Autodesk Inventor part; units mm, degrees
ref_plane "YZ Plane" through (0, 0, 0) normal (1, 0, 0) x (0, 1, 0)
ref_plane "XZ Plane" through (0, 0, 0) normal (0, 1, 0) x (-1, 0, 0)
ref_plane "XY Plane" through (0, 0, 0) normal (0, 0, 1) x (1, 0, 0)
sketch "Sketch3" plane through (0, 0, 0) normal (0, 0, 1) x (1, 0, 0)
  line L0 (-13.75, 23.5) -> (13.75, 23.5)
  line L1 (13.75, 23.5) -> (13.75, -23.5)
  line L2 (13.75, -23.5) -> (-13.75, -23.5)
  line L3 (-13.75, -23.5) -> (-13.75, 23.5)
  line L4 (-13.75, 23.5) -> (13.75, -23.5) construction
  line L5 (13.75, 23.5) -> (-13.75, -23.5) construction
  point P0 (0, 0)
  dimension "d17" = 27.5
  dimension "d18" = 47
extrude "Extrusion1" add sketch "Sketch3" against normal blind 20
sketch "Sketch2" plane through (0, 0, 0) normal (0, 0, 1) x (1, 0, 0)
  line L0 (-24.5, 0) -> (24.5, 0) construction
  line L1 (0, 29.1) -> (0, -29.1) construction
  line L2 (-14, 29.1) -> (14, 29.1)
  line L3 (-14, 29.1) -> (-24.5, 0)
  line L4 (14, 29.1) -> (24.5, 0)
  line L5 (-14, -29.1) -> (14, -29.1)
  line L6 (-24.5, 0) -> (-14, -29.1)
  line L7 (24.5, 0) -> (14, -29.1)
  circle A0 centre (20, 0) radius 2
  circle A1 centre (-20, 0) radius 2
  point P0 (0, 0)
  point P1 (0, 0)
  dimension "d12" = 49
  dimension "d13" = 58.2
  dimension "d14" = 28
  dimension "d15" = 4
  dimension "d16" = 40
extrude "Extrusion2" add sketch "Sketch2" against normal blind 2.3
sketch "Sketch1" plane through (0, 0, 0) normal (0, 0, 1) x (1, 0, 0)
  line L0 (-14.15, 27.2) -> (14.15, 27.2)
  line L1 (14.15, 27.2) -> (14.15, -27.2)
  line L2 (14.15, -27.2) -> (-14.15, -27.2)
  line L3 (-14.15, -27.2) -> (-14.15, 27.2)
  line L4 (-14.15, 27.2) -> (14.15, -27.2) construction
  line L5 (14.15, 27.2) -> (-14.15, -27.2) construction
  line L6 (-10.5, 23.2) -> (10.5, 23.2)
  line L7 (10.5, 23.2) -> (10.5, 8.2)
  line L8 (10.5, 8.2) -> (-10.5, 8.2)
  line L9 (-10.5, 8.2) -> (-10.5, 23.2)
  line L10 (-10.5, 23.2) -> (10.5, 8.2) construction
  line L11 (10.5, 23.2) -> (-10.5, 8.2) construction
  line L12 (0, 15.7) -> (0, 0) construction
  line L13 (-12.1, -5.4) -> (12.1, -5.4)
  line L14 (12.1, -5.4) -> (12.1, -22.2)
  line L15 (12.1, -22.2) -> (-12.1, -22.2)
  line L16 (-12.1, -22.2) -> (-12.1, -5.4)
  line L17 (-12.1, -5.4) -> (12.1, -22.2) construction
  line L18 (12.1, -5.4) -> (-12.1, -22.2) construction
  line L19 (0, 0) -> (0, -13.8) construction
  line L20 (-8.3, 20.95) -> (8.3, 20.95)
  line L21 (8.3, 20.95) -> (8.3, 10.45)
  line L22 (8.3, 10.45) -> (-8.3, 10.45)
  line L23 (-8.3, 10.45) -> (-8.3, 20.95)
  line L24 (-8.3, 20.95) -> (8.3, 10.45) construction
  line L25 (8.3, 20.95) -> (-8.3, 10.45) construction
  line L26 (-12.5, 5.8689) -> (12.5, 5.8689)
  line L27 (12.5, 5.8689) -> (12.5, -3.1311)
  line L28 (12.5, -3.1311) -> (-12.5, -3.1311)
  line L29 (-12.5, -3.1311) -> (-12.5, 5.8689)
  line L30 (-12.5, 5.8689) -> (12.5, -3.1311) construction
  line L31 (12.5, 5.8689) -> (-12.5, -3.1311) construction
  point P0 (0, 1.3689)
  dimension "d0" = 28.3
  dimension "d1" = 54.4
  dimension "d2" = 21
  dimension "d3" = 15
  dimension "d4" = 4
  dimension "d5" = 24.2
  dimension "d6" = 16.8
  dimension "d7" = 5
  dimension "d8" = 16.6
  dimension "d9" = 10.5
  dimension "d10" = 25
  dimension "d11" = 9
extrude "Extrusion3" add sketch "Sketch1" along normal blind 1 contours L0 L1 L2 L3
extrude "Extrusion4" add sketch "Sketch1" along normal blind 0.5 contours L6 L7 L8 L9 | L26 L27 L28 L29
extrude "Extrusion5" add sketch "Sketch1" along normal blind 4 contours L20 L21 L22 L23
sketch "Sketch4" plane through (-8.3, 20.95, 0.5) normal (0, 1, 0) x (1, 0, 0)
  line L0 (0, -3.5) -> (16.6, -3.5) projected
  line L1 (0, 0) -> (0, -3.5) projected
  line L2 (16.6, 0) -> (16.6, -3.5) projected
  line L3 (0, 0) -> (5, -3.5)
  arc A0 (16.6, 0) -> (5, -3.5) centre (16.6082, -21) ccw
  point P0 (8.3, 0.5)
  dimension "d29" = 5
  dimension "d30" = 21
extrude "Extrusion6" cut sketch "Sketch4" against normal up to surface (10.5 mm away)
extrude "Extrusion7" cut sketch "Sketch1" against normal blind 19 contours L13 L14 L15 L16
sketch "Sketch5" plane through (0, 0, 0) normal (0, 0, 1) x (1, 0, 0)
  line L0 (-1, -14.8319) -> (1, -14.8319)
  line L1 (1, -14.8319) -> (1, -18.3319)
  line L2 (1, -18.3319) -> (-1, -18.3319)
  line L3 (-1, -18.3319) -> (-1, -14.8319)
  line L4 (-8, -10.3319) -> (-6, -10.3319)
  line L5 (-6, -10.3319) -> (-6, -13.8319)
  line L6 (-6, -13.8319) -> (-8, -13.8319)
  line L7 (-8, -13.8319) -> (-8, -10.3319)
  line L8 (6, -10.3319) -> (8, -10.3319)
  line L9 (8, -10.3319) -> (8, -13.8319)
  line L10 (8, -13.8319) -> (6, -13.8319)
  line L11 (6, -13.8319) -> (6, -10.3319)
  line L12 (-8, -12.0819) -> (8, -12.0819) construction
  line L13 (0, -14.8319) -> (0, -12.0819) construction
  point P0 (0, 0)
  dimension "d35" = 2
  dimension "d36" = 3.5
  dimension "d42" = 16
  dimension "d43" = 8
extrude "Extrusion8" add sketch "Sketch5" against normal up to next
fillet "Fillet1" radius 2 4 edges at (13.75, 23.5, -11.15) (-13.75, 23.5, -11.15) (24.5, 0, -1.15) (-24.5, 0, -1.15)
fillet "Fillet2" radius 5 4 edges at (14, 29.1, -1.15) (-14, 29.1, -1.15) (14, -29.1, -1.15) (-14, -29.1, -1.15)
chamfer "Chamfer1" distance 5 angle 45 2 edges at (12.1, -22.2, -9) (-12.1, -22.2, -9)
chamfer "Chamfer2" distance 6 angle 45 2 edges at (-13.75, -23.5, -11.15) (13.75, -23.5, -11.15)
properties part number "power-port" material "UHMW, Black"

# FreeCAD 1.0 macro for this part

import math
import FreeCAD as App
import Part
import Sketcher
from FreeCAD import Vector
Q = App.Units.Quantity


def edges_at(feature, points):
    """Names of the edges that pass closest to the given points."""
    edges = feature.Shape.Edges
    near = lambda p: min(range(len(edges)), key=lambda i: edges[i].distToShape(Part.Vertex(*p))[0])
    return sorted({f"Edge{near(p) + 1}" for p in points})


def add_polygon(sketch, points):
    """Adds a closed chain of lines whose ends are joined by coincident constraints."""
    first, n = sketch.GeometryCount, len(points)
    for a, b in zip(points, points[1:] + points[:1]):
        sketch.addGeometry(Part.LineSegment(App.Vector(*a, 0), App.Vector(*b, 0)), False)
    for i in range(n):
        sketch.addConstraint(Sketcher.Constraint("Coincident", first + i, 2, first + (i + 1) % n, 1))

doc = App.newDocument("Part")
body = doc.addObject("PartDesign::Body", "Body")

# Sketch on XY plane
sketch1 = doc.addObject("Sketcher::SketchObject", "Sketch")
body.addObject(sketch1)
sketch1.AttachmentSupport = (doc.XY_Plane, [""])
sketch1.MapMode = "FlatFace"
add_polygon(sketch1, [(13.75, 23.5), (-13.75, 23.5), (-13.75, -23.5), (13.75, -23.5)])  # lines 0-3
sketch1.addConstraint(Sketcher.Constraint("Horizontal", 0))
sketch1.addConstraint(Sketcher.Constraint("Vertical", 1))
sketch1.addConstraint(Sketcher.Constraint("Horizontal", 2))
sketch1.addConstraint(Sketcher.Constraint("Vertical", 3))
sketch1.addConstraint(Sketcher.Constraint("Symmetric", 0, 2, 2, 2, -1, 1))
sketch1.addConstraint(Sketcher.Constraint("DistanceY", 1, 2, 1, 1, Q("47 mm")))
sketch1.addConstraint(Sketcher.Constraint("DistanceX", 0, 2, 0, 1, Q("27.5 mm")))
pad1 = doc.addObject("PartDesign::Pad", "Pad")
body.addObject(pad1)
pad1.Profile = sketch1
pad1.Length = 20
pad1.Reversed = True

# Sketch on XY plane
sketch2 = doc.addObject("Sketcher::SketchObject", "Sketch001")
body.addObject(sketch2)
sketch2.AttachmentSupport = (doc.XY_Plane, [""])
sketch2.MapMode = "FlatFace"
add_polygon(sketch2, [(14, 29.1), (-14, 29.1), (-24.5, 0), (-14, -29.1), (14, -29.1), (24.5, 0)])  # lines 0-5
sketch2.addGeometry(Part.Circle(Vector(-20, 0, 0), Vector(0, 0, 1), 2), False)  # 6
sketch2.addGeometry(Part.Circle(Vector(20, 0, 0), Vector(0, 0, 1), 2), False)  # 7
sketch2.addConstraint(Sketcher.Constraint("Horizontal", 0))
sketch2.addConstraint(Sketcher.Constraint("Horizontal", 3))
sketch2.addConstraint(Sketcher.Constraint("Equal", 6, 7))
sketch2.addConstraint(Sketcher.Constraint("Symmetric", 6, 3, 7, 3, -1, 1))
sketch2.addConstraint(Sketcher.Constraint("Symmetric", 0, 2, 3, 2, -1, 1))
sketch2.addConstraint(Sketcher.Constraint("Symmetric", 1, 2, 4, 2, -1, 1))
sketch2.addConstraint(Sketcher.Constraint("PointOnObject", 6, 3, -1))
sketch2.addConstraint(Sketcher.Constraint("PointOnObject", 1, 2, -1))
sketch2.addConstraint(Sketcher.Constraint("Parallel", 2, 5))
sketch2.addConstraint(Sketcher.Constraint("Vertical", 0, 2, 2, 2))
sketch2.addConstraint(Sketcher.Constraint("Diameter", 6, Q("4 mm")))
sketch2.addConstraint(Sketcher.Constraint("DistanceX", 0, 2, 0, 1, Q("28 mm")))
sketch2.addConstraint(Sketcher.Constraint("DistanceX", 6, 3, 7, 3, Q("40 mm")))
sketch2.addConstraint(Sketcher.Constraint("DistanceY", 2, 2, 0, 2, Q("58.2 mm")))
sketch2.addConstraint(Sketcher.Constraint("DistanceX", 1, 2, -1, 1, Q("24.5 mm")))
pad2 = doc.addObject("PartDesign::Pad", "Pad001")
body.addObject(pad2)
pad2.Profile = sketch2
pad2.Length = 2.3
pad2.Reversed = True

# Sketch on XY plane
sketch3 = doc.addObject("Sketcher::SketchObject", "Sketch002")
body.addObject(sketch3)
sketch3.AttachmentSupport = (doc.XY_Plane, [""])
sketch3.MapMode = "FlatFace"
add_polygon(sketch3, [(14.15, 27.2), (-14.15, 27.2), (-14.15, -27.2), (14.15, -27.2)])  # lines 0-3
add_polygon(sketch3, [(-12.1, -22.2), (-12.1, -5.4), (12.1, -5.4), (12.1, -22.2)])  # lines 4-7
add_polygon(sketch3, [(-12.5, -3.1311), (-12.5, 5.8689), (12.5, 5.8689), (12.5, -3.1311)])  # lines 8-11
add_polygon(sketch3, [(-10.5, 8.2), (-10.5, 23.2), (10.5, 23.2), (10.5, 8.2)])  # lines 12-15
sketch3.addConstraint(Sketcher.Constraint("Horizontal", 0))
sketch3.addConstraint(Sketcher.Constraint("Vertical", 1))
sketch3.addConstraint(Sketcher.Constraint("Horizontal", 2))
sketch3.addConstraint(Sketcher.Constraint("Vertical", 3))
sketch3.addConstraint(Sketcher.Constraint("Vertical", 4))
sketch3.addConstraint(Sketcher.Constraint("Horizontal", 5))
sketch3.addConstraint(Sketcher.Constraint("Vertical", 6))
sketch3.addConstraint(Sketcher.Constraint("Horizontal", 7))
sketch3.addConstraint(Sketcher.Constraint("Vertical", 8))
sketch3.addConstraint(Sketcher.Constraint("Horizontal", 9))
sketch3.addConstraint(Sketcher.Constraint("Vertical", 10))
sketch3.addConstraint(Sketcher.Constraint("Horizontal", 11))
sketch3.addConstraint(Sketcher.Constraint("Vertical", 12))
sketch3.addConstraint(Sketcher.Constraint("Horizontal", 13))
sketch3.addConstraint(Sketcher.Constraint("Vertical", 14))
sketch3.addConstraint(Sketcher.Constraint("Horizontal", 15))
sketch3.addConstraint(Sketcher.Constraint("Symmetric", 0, 2, 2, 2, -1, 1))
sketch3.addConstraint(Sketcher.Constraint("DistanceX", 9, 1, 9, 2, Q("25 mm")))
sketch3.addConstraint(Sketcher.Constraint("DistanceX", 13, 1, 13, 2, Q("21 mm")))
sketch3.addConstraint(Sketcher.Constraint("DistanceY", 8, 1, 8, 2, Q("9 mm")))
sketch3.addConstraint(Sketcher.Constraint("DistanceY", 12, 1, 12, 2, Q("15 mm")))
sketch3.addConstraint(Sketcher.Constraint("DistanceX", 0, 2, 0, 1, Q("28.3 mm")))
sketch3.addConstraint(Sketcher.Constraint("DistanceX", 5, 1, 5, 2, Q("24.2 mm")))
sketch3.addConstraint(Sketcher.Constraint("DistanceY", 1, 2, 1, 1, Q("54.4 mm")))
sketch3.addConstraint(Sketcher.Constraint("DistanceY", 4, 1, 4, 2, Q("16.8 mm")))
sketch3.addConstraint(Sketcher.Constraint("DistanceY", 2, 2, 6, 2, Q("5 mm")))
sketch3.addConstraint(Sketcher.Constraint("DistanceY", 12, 2, 0, 2, Q("4 mm")))
sketch3.addConstraint(Sketcher.Constraint("DistanceX", 12, 2, -1, 1, Q("10.5 mm")))
sketch3.addConstraint(Sketcher.Constraint("DistanceX", 8, 2, 12, 2, Q("2 mm")))
sketch3.addConstraint(Sketcher.Constraint("DistanceX", 4, 2, -1, 1, Q("12.1 mm")))
sketch3.addConstraint(Sketcher.Constraint("DistanceY", -1, 1, 8, 2, Q("5.869 mm")))
pad3 = doc.addObject("PartDesign::Pad", "Pad002")
body.addObject(pad3)
pad3.Profile = sketch3
pad3.Length = 1

# Sketch on XY plane
sketch4 = doc.addObject("Sketcher::SketchObject", "Sketch003")
body.addObject(sketch4)
sketch4.AttachmentSupport = (doc.XY_Plane, [""])
sketch4.MapMode = "FlatFace"
add_polygon(sketch4, [(10.5, 23.2), (-10.5, 23.2), (-10.5, 8.2), (10.5, 8.2)])  # lines 0-3
add_polygon(sketch4, [(-8.3, 10.45), (-8.3, 20.95), (8.3, 20.95), (8.3, 10.45)])  # lines 4-7
add_polygon(sketch4, [(12.5, 5.8689), (-12.5, 5.8689), (-12.5, -3.1311), (12.5, -3.1311)])  # lines 8-11
sketch4.addConstraint(Sketcher.Constraint("Horizontal", 0))
sketch4.addConstraint(Sketcher.Constraint("Vertical", 1))
sketch4.addConstraint(Sketcher.Constraint("Horizontal", 2))
sketch4.addConstraint(Sketcher.Constraint("Vertical", 3))
sketch4.addConstraint(Sketcher.Constraint("Vertical", 4))
sketch4.addConstraint(Sketcher.Constraint("Horizontal", 5))
sketch4.addConstraint(Sketcher.Constraint("Vertical", 6))
sketch4.addConstraint(Sketcher.Constraint("Horizontal", 7))
sketch4.addConstraint(Sketcher.Constraint("Horizontal", 8))
sketch4.addConstraint(Sketcher.Constraint("Vertical", 9))
sketch4.addConstraint(Sketcher.Constraint("Horizontal", 10))
sketch4.addConstraint(Sketcher.Constraint("Vertical", 11))
sketch4.addConstraint(Sketcher.Constraint("DistanceX", 0, 2, 0, 1, Q("21 mm")))
sketch4.addConstraint(Sketcher.Constraint("DistanceX", 8, 2, 8, 1, Q("25 mm")))
sketch4.addConstraint(Sketcher.Constraint("DistanceY", 1, 2, 1, 1, Q("15 mm")))
sketch4.addConstraint(Sketcher.Constraint("DistanceY", 9, 2, 9, 1, Q("9 mm")))
sketch4.addConstraint(Sketcher.Constraint("DistanceX", 5, 1, 5, 2, Q("16.6 mm")))
sketch4.addConstraint(Sketcher.Constraint("DistanceY", 4, 1, 4, 2, Q("10.5 mm")))
sketch4.addConstraint(Sketcher.Constraint("DistanceX", 0, 2, -1, 1, Q("10.5 mm")))
sketch4.addConstraint(Sketcher.Constraint("DistanceX", 8, 2, 1, 2, Q("2 mm")))
sketch4.addConstraint(Sketcher.Constraint("DistanceY", -1, 1, 0, 2, Q("23.2 mm")))
sketch4.addConstraint(Sketcher.Constraint("DistanceX", 4, 2, -1, 1, Q("8.3 mm")))
sketch4.addConstraint(Sketcher.Constraint("DistanceY", -1, 1, 4, 2, Q("20.95 mm")))
sketch4.addConstraint(Sketcher.Constraint("DistanceY", -1, 1, 8, 2, Q("5.869 mm")))
pad4 = doc.addObject("PartDesign::Pad", "Pad003")
body.addObject(pad4)
pad4.Profile = sketch4
pad4.Length = 0.5

# Sketch on XY plane
sketch5 = doc.addObject("Sketcher::SketchObject", "Sketch004")
body.addObject(sketch5)
sketch5.AttachmentSupport = (doc.XY_Plane, [""])
sketch5.MapMode = "FlatFace"
add_polygon(sketch5, [(8.3, 20.95), (-8.3, 20.95), (-8.3, 10.45), (8.3, 10.45)])  # lines 0-3
sketch5.addConstraint(Sketcher.Constraint("Horizontal", 0))
sketch5.addConstraint(Sketcher.Constraint("Vertical", 1))
sketch5.addConstraint(Sketcher.Constraint("Horizontal", 2))
sketch5.addConstraint(Sketcher.Constraint("Vertical", 3))
sketch5.addConstraint(Sketcher.Constraint("DistanceX", 0, 2, 0, 1, Q("16.6 mm")))
sketch5.addConstraint(Sketcher.Constraint("DistanceY", 1, 2, 1, 1, Q("10.5 mm")))
sketch5.addConstraint(Sketcher.Constraint("DistanceX", 0, 2, -1, 1, Q("8.3 mm")))
sketch5.addConstraint(Sketcher.Constraint("DistanceY", -1, 1, 0, 2, Q("20.95 mm")))
pad5 = doc.addObject("PartDesign::Pad", "Pad004")
body.addObject(pad5)
pad5.Profile = sketch5
pad5.Length = 4

# Sketch on XZ plane
sketch6 = doc.addObject("Sketcher::SketchObject", "Sketch005")
body.addObject(sketch6)
sketch6.AttachmentSupport = (doc.XZ_Plane, [""])
sketch6.MapMode = "FlatFace"
sketch6.AttachmentOffset = App.Placement(Vector(0, 0, -20.95), App.Rotation())
add_polygon(sketch6, [(-8.3, 0.5), (-8.3, 4), (-3.3, 4)])  # lines 0-2
sketch6.addGeometry(Part.ArcOfCircle(Part.Circle(Vector(8.3082, 21.5, 0), Vector(0, 0, 1), 21.000002), math.radians(-123.55734), math.radians(-90.022373)), False)  # 3
sketch6.addGeometry(Part.LineSegment(Vector(-3.3, 4, 0), Vector(8.3, 4, 0)), False)  # 4
sketch6.addGeometry(Part.LineSegment(Vector(8.3, 4, 0), Vector(8.3, 0.5, 0)), False)  # 5
sketch6.addConstraint(Sketcher.Constraint("Coincident", 3, 1, 4, 1))
sketch6.addConstraint(Sketcher.Constraint("Coincident", 4, 2, 5, 1))
sketch6.addConstraint(Sketcher.Constraint("Coincident", 5, 2, 3, 2))
sketch6.addConstraint(Sketcher.Constraint("Vertical", 0))
sketch6.addConstraint(Sketcher.Constraint("Horizontal", 1))
sketch6.addConstraint(Sketcher.Constraint("Horizontal", 4))
sketch6.addConstraint(Sketcher.Constraint("Vertical", 5))
sketch6.addConstraint(Sketcher.Constraint("Coincident", 3, 1, 1, 2))
sketch6.addConstraint(Sketcher.Constraint("Symmetric", 2, 2, 5, 2, -2))
sketch6.addConstraint(Sketcher.Constraint("Radius", 3, Q("21 mm")))
sketch6.addConstraint(Sketcher.Constraint("DistanceX", 1, 1, 1, 2, Q("5 mm")))
sketch6.addConstraint(Sketcher.Constraint("DistanceX", 4, 1, 4, 2, Q("11.6 mm")))
sketch6.addConstraint(Sketcher.Constraint("DistanceY", 0, 1, 0, 2, Q("3.5 mm")))
sketch6.addConstraint(Sketcher.Constraint("DistanceY", -1, 1, 0, 2, Q("4 mm")))
pocket1 = doc.addObject("PartDesign::Pocket", "Pocket")
body.addObject(pocket1)
pocket1.Profile = sketch6
pocket1.Length = 10.5
pocket1.Reversed = True

# Sketch on XY plane
sketch7 = doc.addObject("Sketcher::SketchObject", "Sketch006")
body.addObject(sketch7)
sketch7.AttachmentSupport = (doc.XY_Plane, [""])
sketch7.MapMode = "FlatFace"
add_polygon(sketch7, [(12.1, -5.4), (-12.1, -5.4), (-12.1, -22.2), (12.1, -22.2)])  # lines 0-3
sketch7.addConstraint(Sketcher.Constraint("Horizontal", 0))
sketch7.addConstraint(Sketcher.Constraint("Vertical", 1))
sketch7.addConstraint(Sketcher.Constraint("Horizontal", 2))
sketch7.addConstraint(Sketcher.Constraint("Vertical", 3))
sketch7.addConstraint(Sketcher.Constraint("DistanceX", 0, 2, 0, 1, Q("24.2 mm")))
sketch7.addConstraint(Sketcher.Constraint("DistanceY", 1, 2, 1, 1, Q("16.8 mm")))
sketch7.addConstraint(Sketcher.Constraint("DistanceX", 0, 2, -1, 1, Q("12.1 mm")))
sketch7.addConstraint(Sketcher.Constraint("DistanceY", 0, 2, -1, 1, Q("5.4 mm")))
pocket2 = doc.addObject("PartDesign::Pocket", "Pocket001")
body.addObject(pocket2)
pocket2.Profile = sketch7
pocket2.Length = 19

# Sketch on XY plane
sketch8 = doc.addObject("Sketcher::SketchObject", "Sketch007")
body.addObject(sketch8)
sketch8.AttachmentSupport = (doc.XY_Plane, [""])
sketch8.MapMode = "FlatFace"
add_polygon(sketch8, [(1, -14.8319), (-1, -14.8319), (-1, -18.3319), (1, -18.3319)])  # lines 0-3
add_polygon(sketch8, [(-6, -10.3319), (-8, -10.3319), (-8, -13.8319), (-6, -13.8319)])  # lines 4-7
add_polygon(sketch8, [(8, -10.3319), (6, -10.3319), (6, -13.8319), (8, -13.8319)])  # lines 8-11
sketch8.addConstraint(Sketcher.Constraint("Horizontal", 0))
sketch8.addConstraint(Sketcher.Constraint("Vertical", 1))
sketch8.addConstraint(Sketcher.Constraint("Horizontal", 2))
sketch8.addConstraint(Sketcher.Constraint("Vertical", 3))
sketch8.addConstraint(Sketcher.Constraint("Horizontal", 4))
sketch8.addConstraint(Sketcher.Constraint("Vertical", 5))
sketch8.addConstraint(Sketcher.Constraint("Horizontal", 6))
sketch8.addConstraint(Sketcher.Constraint("Vertical", 7))
sketch8.addConstraint(Sketcher.Constraint("Horizontal", 8))
sketch8.addConstraint(Sketcher.Constraint("Vertical", 9))
sketch8.addConstraint(Sketcher.Constraint("Horizontal", 10))
sketch8.addConstraint(Sketcher.Constraint("Vertical", 11))
sketch8.addConstraint(Sketcher.Constraint("Symmetric", 7, 2, 8, 2, -2))
sketch8.addConstraint(Sketcher.Constraint("Symmetric", 5, 2, 10, 2, -2))
sketch8.addConstraint(Sketcher.Constraint("Equal", 2, 4))
sketch8.addConstraint(Sketcher.Constraint("Equal", 3, 5))
sketch8.addConstraint(Sketcher.Constraint("DistanceX", 0, 2, 0, 1, Q("2 mm")))
sketch8.addConstraint(Sketcher.Constraint("DistanceY", 1, 2, 1, 1, Q("3.5 mm")))
sketch8.addConstraint(Sketcher.Constraint("DistanceX", 4, 2, -1, 1, Q("8 mm")))
sketch8.addConstraint(Sketcher.Constraint("DistanceY", 1, 2, 4, 2, Q("8 mm")))
sketch8.addConstraint(Sketcher.Constraint("DistanceX", 0, 2, -1, 1, Q("1 mm")))
sketch8.addConstraint(Sketcher.Constraint("DistanceY", 0, 2, -1, 1, Q("14.832 mm")))
pad6 = doc.addObject("PartDesign::Pad", "Pad005")
body.addObject(pad6)
pad6.Profile = sketch8
pad6.Type = "UpToFirst"
pad6.Reversed = True
doc.recompute()

fillet = doc.addObject("PartDesign::Fillet", "Fillet")
body.addObject(fillet)
fillet.Base = (pad6, edges_at(pad6, [
    (13.75, 23.5, -11.15),
    (-13.75, 23.5, -11.15),
    (24.5, 0, -1.15),
    (-24.5, 0, -1.15),
]))
fillet.Radius = 2
doc.recompute()

fillet2 = doc.addObject("PartDesign::Fillet", "Fillet001")
body.addObject(fillet2)
fillet2.Base = (fillet, edges_at(fillet, [
    (14, 29.1, -1.15),
    (-14, 29.1, -1.15),
    (14, -29.1, -1.15),
    (-14, -29.1, -1.15),
]))
fillet2.Radius = 5
doc.recompute()

chamfer = doc.addObject("PartDesign::Chamfer", "Chamfer")
body.addObject(chamfer)
chamfer.Base = (fillet2, edges_at(fillet2, [(12.1, -22.2, -9), (-12.1, -22.2, -9)]))
chamfer.Size = 5
doc.recompute()

chamfer2 = doc.addObject("PartDesign::Chamfer", "Chamfer001")
body.addObject(chamfer2)
chamfer2.Base = (chamfer, edges_at(chamfer, [(-13.75, -23.5, -11.15), (13.75, -23.5, -11.15)]))
chamfer2.Size = 6

doc.recompute()
